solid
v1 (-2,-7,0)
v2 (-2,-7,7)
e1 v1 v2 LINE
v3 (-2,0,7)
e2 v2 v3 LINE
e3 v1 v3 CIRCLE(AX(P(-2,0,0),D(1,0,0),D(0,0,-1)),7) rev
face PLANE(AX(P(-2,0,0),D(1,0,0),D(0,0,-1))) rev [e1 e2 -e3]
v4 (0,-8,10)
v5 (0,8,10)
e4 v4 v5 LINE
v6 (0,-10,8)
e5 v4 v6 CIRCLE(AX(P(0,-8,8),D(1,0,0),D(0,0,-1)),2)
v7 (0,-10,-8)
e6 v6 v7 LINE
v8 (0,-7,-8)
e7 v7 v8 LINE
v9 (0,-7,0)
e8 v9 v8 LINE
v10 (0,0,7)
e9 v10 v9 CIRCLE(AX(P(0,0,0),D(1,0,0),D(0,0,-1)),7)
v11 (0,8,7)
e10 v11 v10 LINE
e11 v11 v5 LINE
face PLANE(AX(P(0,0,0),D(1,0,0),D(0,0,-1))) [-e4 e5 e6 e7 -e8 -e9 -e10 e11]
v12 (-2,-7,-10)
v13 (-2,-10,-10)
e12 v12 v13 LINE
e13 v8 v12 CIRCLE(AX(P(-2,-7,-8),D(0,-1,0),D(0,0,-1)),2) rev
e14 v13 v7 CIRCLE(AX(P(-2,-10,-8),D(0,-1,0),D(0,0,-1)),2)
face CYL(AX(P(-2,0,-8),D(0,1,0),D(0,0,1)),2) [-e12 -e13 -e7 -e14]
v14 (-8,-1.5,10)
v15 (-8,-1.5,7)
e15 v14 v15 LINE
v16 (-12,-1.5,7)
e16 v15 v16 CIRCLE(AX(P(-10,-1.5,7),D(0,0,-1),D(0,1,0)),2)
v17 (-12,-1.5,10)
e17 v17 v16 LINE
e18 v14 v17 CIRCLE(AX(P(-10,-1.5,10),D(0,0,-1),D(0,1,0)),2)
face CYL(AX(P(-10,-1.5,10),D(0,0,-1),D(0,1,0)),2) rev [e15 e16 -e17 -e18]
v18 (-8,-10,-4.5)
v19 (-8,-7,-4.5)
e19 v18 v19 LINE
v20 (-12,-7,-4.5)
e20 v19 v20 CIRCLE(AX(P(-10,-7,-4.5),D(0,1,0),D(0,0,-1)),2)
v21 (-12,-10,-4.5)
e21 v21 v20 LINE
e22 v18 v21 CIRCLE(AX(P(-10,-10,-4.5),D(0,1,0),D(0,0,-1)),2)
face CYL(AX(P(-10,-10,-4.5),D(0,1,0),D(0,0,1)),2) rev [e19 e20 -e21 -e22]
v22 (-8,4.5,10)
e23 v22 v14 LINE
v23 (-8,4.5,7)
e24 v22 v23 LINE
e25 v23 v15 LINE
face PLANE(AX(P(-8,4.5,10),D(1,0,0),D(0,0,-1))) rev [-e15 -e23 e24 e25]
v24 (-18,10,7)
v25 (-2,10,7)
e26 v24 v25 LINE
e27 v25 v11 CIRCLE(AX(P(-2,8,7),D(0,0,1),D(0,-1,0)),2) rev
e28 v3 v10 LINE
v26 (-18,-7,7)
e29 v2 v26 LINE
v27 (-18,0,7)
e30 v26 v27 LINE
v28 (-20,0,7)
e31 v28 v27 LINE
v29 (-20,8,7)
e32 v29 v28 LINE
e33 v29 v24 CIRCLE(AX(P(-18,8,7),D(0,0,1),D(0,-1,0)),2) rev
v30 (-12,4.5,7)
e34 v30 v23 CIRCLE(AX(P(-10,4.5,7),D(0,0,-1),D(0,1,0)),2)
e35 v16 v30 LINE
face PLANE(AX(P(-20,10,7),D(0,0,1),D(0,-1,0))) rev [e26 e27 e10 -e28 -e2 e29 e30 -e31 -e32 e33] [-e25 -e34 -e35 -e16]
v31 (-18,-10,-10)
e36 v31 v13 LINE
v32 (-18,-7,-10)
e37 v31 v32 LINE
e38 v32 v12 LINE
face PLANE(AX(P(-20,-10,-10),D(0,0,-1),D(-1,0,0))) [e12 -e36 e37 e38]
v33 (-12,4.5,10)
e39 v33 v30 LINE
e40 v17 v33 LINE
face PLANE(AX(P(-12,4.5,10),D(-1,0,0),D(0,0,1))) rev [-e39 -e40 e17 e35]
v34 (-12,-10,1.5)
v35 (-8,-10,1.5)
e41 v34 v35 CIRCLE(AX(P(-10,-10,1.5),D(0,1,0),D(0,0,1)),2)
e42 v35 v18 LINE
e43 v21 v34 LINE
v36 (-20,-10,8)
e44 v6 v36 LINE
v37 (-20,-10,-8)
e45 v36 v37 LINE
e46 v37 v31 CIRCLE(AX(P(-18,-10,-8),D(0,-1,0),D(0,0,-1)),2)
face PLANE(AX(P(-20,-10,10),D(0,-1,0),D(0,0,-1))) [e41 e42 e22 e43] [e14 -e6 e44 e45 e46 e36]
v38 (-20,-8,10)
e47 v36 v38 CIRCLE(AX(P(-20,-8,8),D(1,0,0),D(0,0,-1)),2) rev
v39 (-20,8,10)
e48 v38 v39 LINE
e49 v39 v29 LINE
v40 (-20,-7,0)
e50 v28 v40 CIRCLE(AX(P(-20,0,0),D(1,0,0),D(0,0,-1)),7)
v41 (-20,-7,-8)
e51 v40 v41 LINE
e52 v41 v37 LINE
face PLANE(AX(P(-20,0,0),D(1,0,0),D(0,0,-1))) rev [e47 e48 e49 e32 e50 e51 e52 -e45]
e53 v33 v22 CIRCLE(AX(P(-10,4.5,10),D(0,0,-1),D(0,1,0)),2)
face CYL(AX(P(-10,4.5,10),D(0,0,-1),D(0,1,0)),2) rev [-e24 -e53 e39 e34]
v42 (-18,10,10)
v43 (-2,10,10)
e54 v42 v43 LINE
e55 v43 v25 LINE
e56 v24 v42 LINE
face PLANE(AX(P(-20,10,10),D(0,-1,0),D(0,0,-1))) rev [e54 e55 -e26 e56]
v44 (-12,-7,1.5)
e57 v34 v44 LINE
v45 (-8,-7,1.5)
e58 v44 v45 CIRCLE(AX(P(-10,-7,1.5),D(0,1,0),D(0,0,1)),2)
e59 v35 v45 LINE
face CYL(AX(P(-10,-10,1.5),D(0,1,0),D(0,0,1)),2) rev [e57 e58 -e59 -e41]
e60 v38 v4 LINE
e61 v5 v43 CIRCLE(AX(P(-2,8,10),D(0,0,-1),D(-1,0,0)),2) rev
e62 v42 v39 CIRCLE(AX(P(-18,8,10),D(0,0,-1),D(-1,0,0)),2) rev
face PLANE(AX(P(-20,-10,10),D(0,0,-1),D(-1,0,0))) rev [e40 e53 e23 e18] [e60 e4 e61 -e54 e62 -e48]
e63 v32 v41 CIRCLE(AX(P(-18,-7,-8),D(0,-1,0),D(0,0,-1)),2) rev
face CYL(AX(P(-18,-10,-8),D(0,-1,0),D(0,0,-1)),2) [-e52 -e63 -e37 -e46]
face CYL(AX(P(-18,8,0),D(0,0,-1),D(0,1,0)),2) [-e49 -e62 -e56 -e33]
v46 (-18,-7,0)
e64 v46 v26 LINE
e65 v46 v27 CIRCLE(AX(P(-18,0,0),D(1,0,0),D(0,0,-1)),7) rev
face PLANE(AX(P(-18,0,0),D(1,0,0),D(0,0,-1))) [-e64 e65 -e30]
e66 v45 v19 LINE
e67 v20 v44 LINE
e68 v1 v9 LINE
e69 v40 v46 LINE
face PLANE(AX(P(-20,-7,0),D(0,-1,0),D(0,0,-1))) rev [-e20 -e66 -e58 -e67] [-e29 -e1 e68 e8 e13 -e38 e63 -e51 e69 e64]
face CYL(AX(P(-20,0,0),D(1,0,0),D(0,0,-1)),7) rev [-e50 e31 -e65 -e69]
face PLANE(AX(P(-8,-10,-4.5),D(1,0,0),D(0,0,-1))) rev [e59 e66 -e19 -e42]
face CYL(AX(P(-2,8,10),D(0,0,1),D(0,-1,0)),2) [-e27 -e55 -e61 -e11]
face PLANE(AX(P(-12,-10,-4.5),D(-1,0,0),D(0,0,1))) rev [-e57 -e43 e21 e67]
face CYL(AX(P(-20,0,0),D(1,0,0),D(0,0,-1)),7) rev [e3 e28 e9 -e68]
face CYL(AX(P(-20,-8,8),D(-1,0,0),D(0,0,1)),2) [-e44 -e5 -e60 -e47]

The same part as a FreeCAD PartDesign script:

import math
import FreeCAD as App
import Part
import Sketcher


def edges_at(feature, points):
    """Names of the edges that pass closest to the given points."""
    edges = feature.Shape.Edges
    near = lambda p: min(range(len(edges)), key=lambda i: edges[i].distToShape(Part.Vertex(*p))[0])
    return sorted({f"Edge{near(p) + 1}" for p in points})


def add_polygon(sketch, points):
    """Adds a closed chain of lines whose ends are joined by coincident constraints."""
    first, n = sketch.GeometryCount, len(points)
    for a, b in zip(points, points[1:] + points[:1]):
        sketch.addGeometry(Part.LineSegment(App.Vector(*a, 0), App.Vector(*b, 0)), False)
    for i in range(n):
        sketch.addConstraint(Sketcher.Constraint("Coincident", first + i, 2, first + (i + 1) % n, 1))

doc = App.newDocument("Part")
body = doc.addObject("PartDesign::Body", "Body")

# Sketch on YZ plane
sketch1 = doc.addObject("Sketcher::SketchObject", "Sketch")
body.addObject(sketch1)
sketch1.AttachmentSupport = (doc.YZ_Plane, [""])
sketch1.MapMode = "FlatFace"
sketch1.addGeometry([
    Part.LineSegment(App.Vector(0, 7, 0), App.Vector(10, 7, 0)),  # 0
    Part.LineSegment(App.Vector(10, 7, 0), App.Vector(10, 10, 0)),  # 1
    Part.LineSegment(App.Vector(10, 10, 0), App.Vector(-10, 10, 0)),  # 2
    Part.LineSegment(App.Vector(-10, 10, 0), App.Vector(-10, -10, 0)),  # 3
    Part.LineSegment(App.Vector(-10, -10, 0), App.Vector(-7, -10, 0)),  # 4
    Part.LineSegment(App.Vector(-7, -10, 0), App.Vector(-7, 0, 0)),  # 5
    Part.ArcOfCircle(Part.Circle(App.Vector(0, 0, 0), App.Vector(0, 0, 1), 7), math.radians(90), math.radians(180)),  # 6
], False)
sketch1.addConstraint([
    Sketcher.Constraint("Coincident", 0, 2, 1, 1),
    Sketcher.Constraint("Coincident", 1, 2, 2, 1),
    Sketcher.Constraint("Coincident", 2, 2, 3, 1),
    Sketcher.Constraint("Coincident", 3, 2, 4, 1),
    Sketcher.Constraint("Coincident", 4, 2, 5, 1),
    Sketcher.Constraint("Tangent", 5, 2, 6, 2),
    Sketcher.Constraint("Tangent", 6, 1, 0, 1),
    Sketcher.Constraint("Horizontal", 0),
    Sketcher.Constraint("Vertical", 1),
    Sketcher.Constraint("Horizontal", 2),
    Sketcher.Constraint("Vertical", 3),
    Sketcher.Constraint("Horizontal", 4),
    Sketcher.Constraint("Vertical", 5),
    Sketcher.Constraint("Coincident", 6, 3, -1, 1),
    Sketcher.Constraint("Symmetric", 1, 2, 3, 2, -1, 1),
    Sketcher.Constraint("Equal", 4, 1),
    Sketcher.Constraint("Radius", 6, 7.0),
    Sketcher.Constraint("DistanceX", 0, 1, 0, 2, 10.0),
])
pad1 = doc.addObject("PartDesign::Pad", "Pad")
body.addObject(pad1)
pad1.Profile = sketch1
pad1.Length = 20
pad1.Reversed = True
doc.recompute()

fillet = doc.addObject("PartDesign::Fillet", "Fillet")
body.addObject(fillet)
fillet.Base = (pad1, edges_at(pad1, [
    (-10, -10, 10),
    (-20, -8.5, -10),
    (0, -8.5, -10),
    (-20, 10, 8.5),
    (0, 10, 8.5),
]))
fillet.Radius = 2

# Sketch on YZ plane
sketch2 = doc.addObject("Sketcher::SketchObject", "Sketch001")
body.addObject(sketch2)
sketch2.AttachmentSupport = (doc.YZ_Plane, [""])
sketch2.MapMode = "FlatFace"
sketch2.AttachmentOffset = App.Placement(App.Vector(0, 0, -10), App.Rotation())
add_polygon(sketch2, [(0, 0), (-7, 0), (-7, 7), (0, 7)])  # lines 0-3
sketch2.addConstraint([
    Sketcher.Constraint("Horizontal", 0),
    Sketcher.Constraint("Vertical", 1),
    Sketcher.Constraint("Horizontal", 2),
    Sketcher.Constraint("Vertical", 3),
    Sketcher.Constraint("Coincident", 3, 2, -1, 1),
    Sketcher.Constraint("Equal", 2, 1),
    Sketcher.Constraint("DistanceX", 0, 2, 0, 1, 7.0),
])
pocket1 = doc.addObject("PartDesign::Pocket", "Pocket")
body.addObject(pocket1)
pocket1.Profile = sketch2
pocket1.Length = 16
pocket1.Midplane = True

# Sketch on XZ plane
sketch3 = doc.addObject("Sketcher::SketchObject", "Sketch002")
body.addObject(sketch3)
sketch3.AttachmentSupport = (doc.XZ_Plane, [""])
sketch3.MapMode = "FlatFace"
sketch3.AttachmentOffset = App.Placement(App.Vector(0, 0, 7), App.Rotation())
sketch3.addGeometry([
    Part.LineSegment(App.Vector(-12, -4.5, 0), App.Vector(-12, 1.5, 0)),
    Part.ArcOfCircle(Part.Circle(App.Vector(-10, 1.5, 0), App.Vector(0, 0, 1), 2), math.radians(0), math.radians(180)),
    Part.LineSegment(App.Vector(-8, 1.5, 0), App.Vector(-8, -4.5, 0)),
    Part.ArcOfCircle(Part.Circle(App.Vector(-10, -4.5, 0), App.Vector(0, 0, 1), 2), math.radians(180), math.radians(360)),
], False)
sketch3.addConstraint([
    Sketcher.Constraint("Tangent", 0, 2, 1, 2),
    Sketcher.Constraint("Tangent", 1, 1, 2, 1),
    Sketcher.Constraint("Tangent", 2, 2, 3, 2),
    Sketcher.Constraint("Tangent", 3, 1, 0, 1),
    Sketcher.Constraint("Vertical", 0),
    Sketcher.Constraint("Vertical", 2),
    Sketcher.Constraint("Radius", 1, 2.0),
    Sketcher.Constraint("DistanceY", 0, 1, 0, 2, 6.0),
    Sketcher.Constraint("DistanceX", 1, 3, -1, 1, 10.0),
    Sketcher.Constraint("DistanceY", -1, 1, 1, 3, 1.5),
])
pocket2 = doc.addObject("PartDesign::Pocket", "Pocket001")
body.addObject(pocket2)
pocket2.Profile = sketch3
pocket2.Type = "ThroughAll"
pocket2.Reversed = True

# Sketch on XY plane
sketch4 = doc.addObject("Sketcher::SketchObject", "Sketch003")
body.addObject(sketch4)
sketch4.AttachmentSupport = (doc.XY_Plane, [""])
sketch4.MapMode = "FlatFace"
sketch4.AttachmentOffset = App.Placement(App.Vector(0, 0, 7), App.Rotation())
sketch4.addGeometry([
    Part.LineSegment(App.Vector(-8, 4.5, 0), App.Vector(-8, -1.5, 0)),
    Part.ArcOfCircle(Part.Circle(App.Vector(-10, -1.5, 0), App.Vector(0, 0, 1), 2), math.radians(180), math.radians(360)),
    Part.LineSegment(App.Vector(-12, -1.5, 0), App.Vector(-12, 4.5, 0)),
    Part.ArcOfCircle(Part.Circle(App.Vector(-10, 4.5, 0), App.Vector(0, 0, 1), 2), math.radians(0), math.radians(180)),
], False)
sketch4.addConstraint([
    Sketcher.Constraint("Tangent", 0, 2, 1, 2),
    Sketcher.Constraint("Tangent", 1, 1, 2, 1),
    Sketcher.Constraint("Tangent", 2, 2, 3, 2),
    Sketcher.Constraint("Tangent", 3, 1, 0, 1),
    Sketcher.Constraint("Vertical", 0),
    Sketcher.Constraint("Vertical", 2),
    Sketcher.Constraint("Radius", 1, 2.0),
    Sketcher.Constraint("DistanceY", 0, 2, 0, 1, 6.0),
    Sketcher.Constraint("DistanceX", 1, 3, -1, 1, 10.0),
    Sketcher.Constraint("DistanceY", 1, 3, -1, 1, 1.5),
])
pocket3 = doc.addObject("PartDesign::Pocket", "Pocket002")
body.addObject(pocket3)
pocket3.Profile = sketch4
pocket3.Type = "ThroughAll"
pocket3.Reversed = True

doc.recompute()
